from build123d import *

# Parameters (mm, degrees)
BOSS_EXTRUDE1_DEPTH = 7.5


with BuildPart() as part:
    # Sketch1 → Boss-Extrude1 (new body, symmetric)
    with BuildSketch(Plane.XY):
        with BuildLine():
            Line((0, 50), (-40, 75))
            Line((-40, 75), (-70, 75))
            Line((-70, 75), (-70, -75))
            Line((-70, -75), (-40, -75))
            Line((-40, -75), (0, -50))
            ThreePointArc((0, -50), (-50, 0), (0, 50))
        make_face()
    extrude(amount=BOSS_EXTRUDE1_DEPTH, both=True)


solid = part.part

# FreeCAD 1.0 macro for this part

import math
import FreeCAD as App
import Part
import Sketcher

V = App.Vector

doc = App.newDocument("Part")
body = doc.addObject("PartDesign::Body", "Body")

# Sketch on XY plane
sketch1 = body.newObject("Sketcher::SketchObject", "Sketch")
sketch1.AttachmentSupport = (doc.getObject("XY_Plane"), [""])
sketch1.MapMode = "FlatFace"
sketch1.addGeometry(Part.LineSegment(V(0, 50, 0), V(-40, 75, 0)), False)
sketch1.addGeometry(Part.LineSegment(V(-40, 75, 0), V(-70, 75, 0)), False)
sketch1.addGeometry(Part.LineSegment(V(-70, 75, 0), V(-70, -75, 0)), False)
sketch1.addGeometry(Part.LineSegment(V(-70, -75, 0), V(-40, -75, 0)), False)
sketch1.addGeometry(Part.LineSegment(V(-40, -75, 0), V(0, -50, 0)), False)
sketch1.addGeometry(Part.ArcOfCircle(Part.Circle(V(0, 0, 0), V(0, 0, 1), 50), math.radians(90), math.radians(270)), False)
sketch1.addConstraint(Sketcher.Constraint("Coincident", 0, 2, 1, 1))
sketch1.addConstraint(Sketcher.Constraint("Coincident", 1, 2, 2, 1))
sketch1.addConstraint(Sketcher.Constraint("Coincident", 2, 2, 3, 1))
sketch1.addConstraint(Sketcher.Constraint("Coincident", 3, 2, 4, 1))
sketch1.addConstraint(Sketcher.Constraint("Coincident", 4, 2, 5, 2))
sketch1.addConstraint(Sketcher.Constraint("Coincident", 5, 1, 0, 1))
sketch1.addConstraint(Sketcher.Constraint("Horizontal", 1))
sketch1.addConstraint(Sketcher.Constraint("Vertical", 2))
sketch1.addConstraint(Sketcher.Constraint("Horizontal", 3))
sketch1.addConstraint(Sketcher.Constraint("Coincident", 5, 3, -1, 1))
sketch1.addConstraint(Sketcher.Constraint("Symmetric", 0, 2, 3, 2, -1))
sketch1.addConstraint(Sketcher.Constraint("PointOnObject", 4, 2, -2))
sketch1.addConstraint(Sketcher.Constraint("PointOnObject", 5, 1, -2))
sketch1.addConstraint(Sketcher.Constraint("Radius", 5, 50.0))
sketch1.addConstraint(Sketcher.Constraint("DistanceX", 1, 2, 1, 1, 30.0))
sketch1.addConstraint(Sketcher.Constraint("DistanceY", 2, 2, 2, 1, 150.0))
sketch1.addConstraint(Sketcher.Constraint("DistanceX", 0, 2, -1, 1, 40.0))
pad1 = body.newObject("PartDesign::Pad", "Pad")
pad1.Profile = sketch1
pad1.Length = 15
pad1.Midplane = True

doc.recompute()
